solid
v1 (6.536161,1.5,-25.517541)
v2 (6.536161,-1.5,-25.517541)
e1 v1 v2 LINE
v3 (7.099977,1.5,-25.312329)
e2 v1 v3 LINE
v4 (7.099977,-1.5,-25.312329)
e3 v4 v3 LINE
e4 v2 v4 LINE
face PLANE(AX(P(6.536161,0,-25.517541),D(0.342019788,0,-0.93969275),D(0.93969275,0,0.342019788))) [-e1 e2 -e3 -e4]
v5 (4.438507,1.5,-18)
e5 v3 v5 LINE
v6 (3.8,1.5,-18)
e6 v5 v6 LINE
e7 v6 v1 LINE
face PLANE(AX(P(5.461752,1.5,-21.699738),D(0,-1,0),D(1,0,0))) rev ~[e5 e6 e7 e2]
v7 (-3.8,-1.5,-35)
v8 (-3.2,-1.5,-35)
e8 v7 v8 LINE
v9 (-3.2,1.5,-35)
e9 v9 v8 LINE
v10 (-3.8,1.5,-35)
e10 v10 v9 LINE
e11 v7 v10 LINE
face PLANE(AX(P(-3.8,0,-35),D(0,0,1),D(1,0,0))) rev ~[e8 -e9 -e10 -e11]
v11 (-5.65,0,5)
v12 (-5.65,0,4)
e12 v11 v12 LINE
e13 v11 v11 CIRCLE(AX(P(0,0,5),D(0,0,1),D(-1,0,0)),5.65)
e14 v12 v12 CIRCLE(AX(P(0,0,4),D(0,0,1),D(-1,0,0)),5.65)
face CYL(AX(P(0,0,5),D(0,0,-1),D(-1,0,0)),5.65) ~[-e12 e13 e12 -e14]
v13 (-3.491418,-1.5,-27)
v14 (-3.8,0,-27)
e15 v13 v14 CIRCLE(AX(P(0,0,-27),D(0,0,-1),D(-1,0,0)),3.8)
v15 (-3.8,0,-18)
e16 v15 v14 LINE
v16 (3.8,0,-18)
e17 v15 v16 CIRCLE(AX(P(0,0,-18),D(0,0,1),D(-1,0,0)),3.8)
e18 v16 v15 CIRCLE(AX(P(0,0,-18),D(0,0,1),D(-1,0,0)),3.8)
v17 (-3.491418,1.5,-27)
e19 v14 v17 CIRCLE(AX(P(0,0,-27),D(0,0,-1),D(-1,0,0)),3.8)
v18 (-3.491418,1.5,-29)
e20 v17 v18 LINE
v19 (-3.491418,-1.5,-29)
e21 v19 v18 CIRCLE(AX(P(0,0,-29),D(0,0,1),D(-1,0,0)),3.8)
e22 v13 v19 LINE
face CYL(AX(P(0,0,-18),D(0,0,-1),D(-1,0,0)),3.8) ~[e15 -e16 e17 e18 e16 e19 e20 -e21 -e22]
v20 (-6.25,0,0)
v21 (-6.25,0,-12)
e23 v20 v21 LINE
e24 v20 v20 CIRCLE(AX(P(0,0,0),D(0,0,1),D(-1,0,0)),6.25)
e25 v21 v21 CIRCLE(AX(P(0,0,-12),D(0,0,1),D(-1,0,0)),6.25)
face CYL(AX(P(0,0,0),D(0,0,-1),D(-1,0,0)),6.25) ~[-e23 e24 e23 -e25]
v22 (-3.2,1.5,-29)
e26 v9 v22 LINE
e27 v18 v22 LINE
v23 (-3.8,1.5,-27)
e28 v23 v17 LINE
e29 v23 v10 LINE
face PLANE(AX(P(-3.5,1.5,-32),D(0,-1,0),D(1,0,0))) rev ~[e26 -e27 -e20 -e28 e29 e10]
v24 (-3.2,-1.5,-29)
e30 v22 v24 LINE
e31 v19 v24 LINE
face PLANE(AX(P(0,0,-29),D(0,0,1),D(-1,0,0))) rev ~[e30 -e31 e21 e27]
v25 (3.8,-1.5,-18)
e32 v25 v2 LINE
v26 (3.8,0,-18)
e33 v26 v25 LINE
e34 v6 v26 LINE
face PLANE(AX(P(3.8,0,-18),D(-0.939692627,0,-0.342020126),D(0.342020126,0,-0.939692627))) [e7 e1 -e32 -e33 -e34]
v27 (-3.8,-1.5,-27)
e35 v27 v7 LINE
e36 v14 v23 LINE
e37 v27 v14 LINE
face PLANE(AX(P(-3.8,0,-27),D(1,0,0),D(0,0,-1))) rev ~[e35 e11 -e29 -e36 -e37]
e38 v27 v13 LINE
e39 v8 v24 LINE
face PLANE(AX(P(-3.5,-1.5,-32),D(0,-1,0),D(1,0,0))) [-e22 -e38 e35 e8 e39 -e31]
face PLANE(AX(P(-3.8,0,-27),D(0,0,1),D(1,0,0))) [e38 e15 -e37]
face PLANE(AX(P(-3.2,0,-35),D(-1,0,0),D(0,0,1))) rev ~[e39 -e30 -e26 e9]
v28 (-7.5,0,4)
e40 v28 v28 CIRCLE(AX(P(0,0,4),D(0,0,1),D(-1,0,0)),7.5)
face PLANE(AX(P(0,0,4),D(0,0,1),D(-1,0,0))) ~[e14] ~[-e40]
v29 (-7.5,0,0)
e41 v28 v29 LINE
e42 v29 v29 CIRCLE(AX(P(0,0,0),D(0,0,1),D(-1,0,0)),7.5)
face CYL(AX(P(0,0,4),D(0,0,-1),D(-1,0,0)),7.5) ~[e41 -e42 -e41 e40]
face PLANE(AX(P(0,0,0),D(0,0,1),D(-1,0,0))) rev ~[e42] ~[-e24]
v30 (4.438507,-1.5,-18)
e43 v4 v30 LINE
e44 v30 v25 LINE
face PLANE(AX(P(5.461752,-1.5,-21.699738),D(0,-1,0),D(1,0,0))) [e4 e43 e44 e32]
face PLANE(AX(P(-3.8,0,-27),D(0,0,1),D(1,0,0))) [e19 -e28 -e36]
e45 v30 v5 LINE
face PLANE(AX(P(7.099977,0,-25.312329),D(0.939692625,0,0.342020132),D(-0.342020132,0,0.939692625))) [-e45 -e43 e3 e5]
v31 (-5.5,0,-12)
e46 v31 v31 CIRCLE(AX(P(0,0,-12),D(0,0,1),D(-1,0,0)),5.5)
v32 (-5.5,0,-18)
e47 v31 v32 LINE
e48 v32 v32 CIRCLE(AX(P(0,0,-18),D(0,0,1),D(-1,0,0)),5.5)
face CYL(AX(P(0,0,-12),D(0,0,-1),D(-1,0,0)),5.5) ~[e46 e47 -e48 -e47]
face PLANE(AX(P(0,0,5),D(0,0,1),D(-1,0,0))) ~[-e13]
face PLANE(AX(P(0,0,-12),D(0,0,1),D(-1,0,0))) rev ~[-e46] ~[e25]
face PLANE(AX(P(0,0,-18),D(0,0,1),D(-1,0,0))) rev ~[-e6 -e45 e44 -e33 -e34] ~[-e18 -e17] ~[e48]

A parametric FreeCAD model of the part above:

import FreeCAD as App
import Part
import Sketcher
Q = App.Units.Quantity

doc = App.newDocument("Part")
params = doc.addObject("Spreadsheet::Sheet", "Params")
for row, (alias, value) in enumerate([
    ("sketch1_height", "1 mm"),
    ("sketch1_height2", "4 mm"),
    ("sketch1_height3", "12 mm"),
    ("sketch1_height4", "6 mm"),
    ("sketch1_height5", "11 mm"),
    ("revolution_angle", "360 deg"),
    ("sketch2_height", "8 mm"),
    ("sketch2_length", "8 mm"),
    ("sketch2_width", "0.6 mm"),
    ("sketch2_length2", "0.6 mm"),
    ("pad1_length", "3 mm"),
], start=1):
    params.set(f"A{row}", alias)
    params.set(f"B{row}", "=" + value)
    params.setAlias(f"B{row}", alias)

body = doc.addObject("PartDesign::Body", "Body")

sketch1 = doc.addObject("Sketcher::SketchObject", "Sketch")
body.addObject(sketch1)
sketch1.AttachmentSupport = (doc.XZ_Plane, [""])
sketch1.MapMode = "FlatFace"
sketch1.addGeometry(Part.LineSegment(App.Vector(0, 5, 0), App.Vector(-5.7, 5, 0)), False)
sketch1.addGeometry(Part.LineSegment(App.Vector(-5.7, 5, 0), App.Vector(-5.7, 4, 0)), False)
sketch1.addGeometry(Part.LineSegment(App.Vector(-5.7, 4, 0), App.Vector(-7.5, 4, 0)), False)
sketch1.addGeometry(Part.LineSegment(App.Vector(-7.5, 4, 0), App.Vector(-7.5, 0, 0)), False)
sketch1.addGeometry(Part.LineSegment(App.Vector(-7.5, 0, 0), App.Vector(-6.2, 0, 0)), False)
sketch1.addGeometry(Part.LineSegment(App.Vector(-6.2, 0, 0), App.Vector(-6.2, -12, 0)), False)
sketch1.addGeometry(Part.LineSegment(App.Vector(-6.2, -12, 0), App.Vector(-5.5, -12, 0)), False)
sketch1.addGeometry(Part.LineSegment(App.Vector(-5.5, -12, 0), App.Vector(-5.5, -18, 0)), False)
sketch1.addGeometry(Part.LineSegment(App.Vector(-5.5, -18, 0), App.Vector(-3.8, -18, 0)), False)
sketch1.addGeometry(Part.LineSegment(App.Vector(-3.8, -18, 0), App.Vector(-3.8, -29, 0)), False)
sketch1.addGeometry(Part.LineSegment(App.Vector(-3.8, -29, 0), App.Vector(0, -29, 0)), False)
sketch1.addGeometry(Part.LineSegment(App.Vector(0, -29, 0), App.Vector(0, 5, 0)), False)
sketch1.addConstraint(Sketcher.Constraint("Coincident", 0, 2, 1, 1))
sketch1.addConstraint(Sketcher.Constraint("Coincident", 1, 2, 2, 1))
sketch1.addConstraint(Sketcher.Constraint("Coincident", 2, 2, 3, 1))
sketch1.addConstraint(Sketcher.Constraint("Coincident", 3, 2, 4, 1))
sketch1.addConstraint(Sketcher.Constraint("Coincident", 4, 2, 5, 1))
sketch1.addConstraint(Sketcher.Constraint("Coincident", 5, 2, 6, 1))
sketch1.addConstraint(Sketcher.Constraint("Coincident", 6, 2, 7, 1))
sketch1.addConstraint(Sketcher.Constraint("Coincident", 7, 2, 8, 1))
sketch1.addConstraint(Sketcher.Constraint("Coincident", 8, 2, 9, 1))
sketch1.addConstraint(Sketcher.Constraint("Coincident", 9, 2, 10, 1))
sketch1.addConstraint(Sketcher.Constraint("Coincident", 10, 2, 11, 1))
sketch1.addConstraint(Sketcher.Constraint("Coincident", 11, 2, 0, 1))
sketch1.addConstraint(Sketcher.Constraint("Horizontal", 0))
sketch1.addConstraint(Sketcher.Constraint("Vertical", 1))
sketch1.addConstraint(Sketcher.Constraint("Horizontal", 2))
sketch1.addConstraint(Sketcher.Constraint("Vertical", 3))
sketch1.addConstraint(Sketcher.Constraint("Horizontal", 4))
sketch1.addConstraint(Sketcher.Constraint("Vertical", 5))
sketch1.addConstraint(Sketcher.Constraint("Horizontal", 6))
sketch1.addConstraint(Sketcher.Constraint("Vertical", 7))
sketch1.addConstraint(Sketcher.Constraint("Horizontal", 8))
sketch1.addConstraint(Sketcher.Constraint("Vertical", 9))
sketch1.addConstraint(Sketcher.Constraint("Horizontal", 10))
sketch1.addConstraint(Sketcher.Constraint("Vertical", 11))
sketch1.addConstraint(Sketcher.Constraint("PointOnObject", 3, 2, -1))
sketch1.addConstraint(Sketcher.Constraint("PointOnObject", 10, 2, -2))
sketch1.addConstraint(Sketcher.Constraint("DistanceY", 1, 2, 1, 1, 1.0))
sketch1.addConstraint(Sketcher.Constraint("DistanceY", 3, 2, 3, 1, 4.0))
sketch1.addConstraint(Sketcher.Constraint("DistanceY", 5, 2, 5, 1, 12.0))
sketch1.addConstraint(Sketcher.Constraint("DistanceY", 7, 2, 7, 1, 6.0))
sketch1.addConstraint(Sketcher.Constraint("DistanceY", 9, 2, 9, 1, 11.0))
sketch1.addConstraint(Sketcher.Constraint("DistanceX", 8, 1, 8, 2, 1.7))
sketch1.addConstraint(Sketcher.Constraint("DistanceX", 10, 1, 10, 2, 3.8))
sketch1.addConstraint(Sketcher.Constraint("DistanceX", 3, 2, 6, 2, 2.0))
sketch1.addConstraint(Sketcher.Constraint("DistanceX", 0, 2, 0, 1, 5.65))
sketch1.addConstraint(Sketcher.Constraint("DistanceX", 4, 1, 4, 2, 1.25))
sketch1.setExpression("Constraints[26]", "Params.sketch1_height")
sketch1.setExpression("Constraints[27]", "Params.sketch1_height2")
sketch1.setExpression("Constraints[28]", "Params.sketch1_height3")
sketch1.setExpression("Constraints[29]", "Params.sketch1_height4")
sketch1.setExpression("Constraints[30]", "Params.sketch1_height5")
revolution = doc.addObject("PartDesign::Revolution", "Revolution")
body.addObject(revolution)
revolution.Profile = sketch1
revolution.ReferenceAxis = (sketch1, ["V_Axis"])
revolution.setExpression("Angle", "Params.revolution_angle")

sketch2 = doc.addObject("Sketcher::SketchObject", "Sketch001")
body.addObject(sketch2)
sketch2.AttachmentSupport = (doc.XZ_Plane, [""])
sketch2.MapMode = "FlatFace"
sketch2.addGeometry(Part.LineSegment(App.Vector(-3.8, -35, 0), App.Vector(-3.2, -35, 0)), False)
sketch2.addGeometry(Part.LineSegment(App.Vector(-3.2, -35, 0), App.Vector(-3.2, -27, 0)), False)
sketch2.addGeometry(Part.LineSegment(App.Vector(-3.2, -27, 0), App.Vector(-3.8, -27, 0)), False)
sketch2.addGeometry(Part.LineSegment(App.Vector(-3.8, -27, 0), App.Vector(-3.8, -35, 0)), False)
sketch2.addGeometry(Part.LineSegment(App.Vector(4.4, -18, 0), App.Vector(3.8, -18, 0)), False)
sketch2.addGeometry(Part.LineSegment(App.Vector(3.8, -18, 0), App.Vector(6.5, -25.5, 0)), False)
sketch2.addGeometry(Part.LineSegment(App.Vector(6.5, -25.5, 0), App.Vector(7.1, -25.3, 0)), False)
sketch2.addGeometry(Part.LineSegment(App.Vector(7.1, -25.3, 0), App.Vector(4.4, -18, 0)), False)
sketch2.addConstraint(Sketcher.Constraint("Coincident", 0, 2, 1, 1))
sketch2.addConstraint(Sketcher.Constraint("Coincident", 1, 2, 2, 1))
sketch2.addConstraint(Sketcher.Constraint("Coincident", 2, 2, 3, 1))
sketch2.addConstraint(Sketcher.Constraint("Coincident", 3, 2, 0, 1))
sketch2.addConstraint(Sketcher.Constraint("Coincident", 4, 2, 5, 1))
sketch2.addConstraint(Sketcher.Constraint("Coincident", 5, 2, 6, 1))
sketch2.addConstraint(Sketcher.Constraint("Coincident", 6, 2, 7, 1))
sketch2.addConstraint(Sketcher.Constraint("Coincident", 7, 2, 4, 1))
sketch2.addConstraint(Sketcher.Constraint("Horizontal", 0))
sketch2.addConstraint(Sketcher.Constraint("Vertical", 1))
sketch2.addConstraint(Sketcher.Constraint("Horizontal", 2))
sketch2.addConstraint(Sketcher.Constraint("Vertical", 3))
sketch2.addConstraint(Sketcher.Constraint("Horizontal", 4))
sketch2.addConstraint(Sketcher.Constraint("Perpendicular", 5, 6))
sketch2.addConstraint(Sketcher.Constraint("Perpendicular", 6, 7))
sketch2.addConstraint(Sketcher.Constraint("DistanceY", 1, 1, 1, 2, 8.0))
sketch2.addConstraint(Sketcher.Constraint("Angle", 5, Q("-70.000001 deg")))
sketch2.addConstraint(Sketcher.Constraint("Distance", 5, 8.0))
sketch2.addConstraint(Sketcher.Constraint("DistanceX", 0, 1, 0, 2, 0.6))
sketch2.addConstraint(Sketcher.Constraint("DistanceY", 0, 2, -1, 1, 35.0))
sketch2.addConstraint(Sketcher.Constraint("DistanceY", 4, 2, -1, 1, 18.0))
sketch2.addConstraint(Sketcher.Constraint("DistanceX", 1, 2, 4, 2, 7.0))
sketch2.addConstraint(Sketcher.Constraint("Distance", 6, 0.6))
sketch2.addConstraint(Sketcher.Constraint("DistanceX", 0, 2, -1, 1, 3.2))
sketch2.setExpression("Constraints[15]", "Params.sketch2_height")
sketch2.setExpression("Constraints[17]", "Params.sketch2_length")
sketch2.setExpression("Constraints[18]", "Params.sketch2_width")
sketch2.setExpression("Constraints[22]", "Params.sketch2_length2")
pad1 = doc.addObject("PartDesign::Pad", "Pad")
body.addObject(pad1)
pad1.Profile = sketch2
pad1.setExpression("Length", "Params.pad1_length")
pad1.Midplane = True

doc.recompute()
